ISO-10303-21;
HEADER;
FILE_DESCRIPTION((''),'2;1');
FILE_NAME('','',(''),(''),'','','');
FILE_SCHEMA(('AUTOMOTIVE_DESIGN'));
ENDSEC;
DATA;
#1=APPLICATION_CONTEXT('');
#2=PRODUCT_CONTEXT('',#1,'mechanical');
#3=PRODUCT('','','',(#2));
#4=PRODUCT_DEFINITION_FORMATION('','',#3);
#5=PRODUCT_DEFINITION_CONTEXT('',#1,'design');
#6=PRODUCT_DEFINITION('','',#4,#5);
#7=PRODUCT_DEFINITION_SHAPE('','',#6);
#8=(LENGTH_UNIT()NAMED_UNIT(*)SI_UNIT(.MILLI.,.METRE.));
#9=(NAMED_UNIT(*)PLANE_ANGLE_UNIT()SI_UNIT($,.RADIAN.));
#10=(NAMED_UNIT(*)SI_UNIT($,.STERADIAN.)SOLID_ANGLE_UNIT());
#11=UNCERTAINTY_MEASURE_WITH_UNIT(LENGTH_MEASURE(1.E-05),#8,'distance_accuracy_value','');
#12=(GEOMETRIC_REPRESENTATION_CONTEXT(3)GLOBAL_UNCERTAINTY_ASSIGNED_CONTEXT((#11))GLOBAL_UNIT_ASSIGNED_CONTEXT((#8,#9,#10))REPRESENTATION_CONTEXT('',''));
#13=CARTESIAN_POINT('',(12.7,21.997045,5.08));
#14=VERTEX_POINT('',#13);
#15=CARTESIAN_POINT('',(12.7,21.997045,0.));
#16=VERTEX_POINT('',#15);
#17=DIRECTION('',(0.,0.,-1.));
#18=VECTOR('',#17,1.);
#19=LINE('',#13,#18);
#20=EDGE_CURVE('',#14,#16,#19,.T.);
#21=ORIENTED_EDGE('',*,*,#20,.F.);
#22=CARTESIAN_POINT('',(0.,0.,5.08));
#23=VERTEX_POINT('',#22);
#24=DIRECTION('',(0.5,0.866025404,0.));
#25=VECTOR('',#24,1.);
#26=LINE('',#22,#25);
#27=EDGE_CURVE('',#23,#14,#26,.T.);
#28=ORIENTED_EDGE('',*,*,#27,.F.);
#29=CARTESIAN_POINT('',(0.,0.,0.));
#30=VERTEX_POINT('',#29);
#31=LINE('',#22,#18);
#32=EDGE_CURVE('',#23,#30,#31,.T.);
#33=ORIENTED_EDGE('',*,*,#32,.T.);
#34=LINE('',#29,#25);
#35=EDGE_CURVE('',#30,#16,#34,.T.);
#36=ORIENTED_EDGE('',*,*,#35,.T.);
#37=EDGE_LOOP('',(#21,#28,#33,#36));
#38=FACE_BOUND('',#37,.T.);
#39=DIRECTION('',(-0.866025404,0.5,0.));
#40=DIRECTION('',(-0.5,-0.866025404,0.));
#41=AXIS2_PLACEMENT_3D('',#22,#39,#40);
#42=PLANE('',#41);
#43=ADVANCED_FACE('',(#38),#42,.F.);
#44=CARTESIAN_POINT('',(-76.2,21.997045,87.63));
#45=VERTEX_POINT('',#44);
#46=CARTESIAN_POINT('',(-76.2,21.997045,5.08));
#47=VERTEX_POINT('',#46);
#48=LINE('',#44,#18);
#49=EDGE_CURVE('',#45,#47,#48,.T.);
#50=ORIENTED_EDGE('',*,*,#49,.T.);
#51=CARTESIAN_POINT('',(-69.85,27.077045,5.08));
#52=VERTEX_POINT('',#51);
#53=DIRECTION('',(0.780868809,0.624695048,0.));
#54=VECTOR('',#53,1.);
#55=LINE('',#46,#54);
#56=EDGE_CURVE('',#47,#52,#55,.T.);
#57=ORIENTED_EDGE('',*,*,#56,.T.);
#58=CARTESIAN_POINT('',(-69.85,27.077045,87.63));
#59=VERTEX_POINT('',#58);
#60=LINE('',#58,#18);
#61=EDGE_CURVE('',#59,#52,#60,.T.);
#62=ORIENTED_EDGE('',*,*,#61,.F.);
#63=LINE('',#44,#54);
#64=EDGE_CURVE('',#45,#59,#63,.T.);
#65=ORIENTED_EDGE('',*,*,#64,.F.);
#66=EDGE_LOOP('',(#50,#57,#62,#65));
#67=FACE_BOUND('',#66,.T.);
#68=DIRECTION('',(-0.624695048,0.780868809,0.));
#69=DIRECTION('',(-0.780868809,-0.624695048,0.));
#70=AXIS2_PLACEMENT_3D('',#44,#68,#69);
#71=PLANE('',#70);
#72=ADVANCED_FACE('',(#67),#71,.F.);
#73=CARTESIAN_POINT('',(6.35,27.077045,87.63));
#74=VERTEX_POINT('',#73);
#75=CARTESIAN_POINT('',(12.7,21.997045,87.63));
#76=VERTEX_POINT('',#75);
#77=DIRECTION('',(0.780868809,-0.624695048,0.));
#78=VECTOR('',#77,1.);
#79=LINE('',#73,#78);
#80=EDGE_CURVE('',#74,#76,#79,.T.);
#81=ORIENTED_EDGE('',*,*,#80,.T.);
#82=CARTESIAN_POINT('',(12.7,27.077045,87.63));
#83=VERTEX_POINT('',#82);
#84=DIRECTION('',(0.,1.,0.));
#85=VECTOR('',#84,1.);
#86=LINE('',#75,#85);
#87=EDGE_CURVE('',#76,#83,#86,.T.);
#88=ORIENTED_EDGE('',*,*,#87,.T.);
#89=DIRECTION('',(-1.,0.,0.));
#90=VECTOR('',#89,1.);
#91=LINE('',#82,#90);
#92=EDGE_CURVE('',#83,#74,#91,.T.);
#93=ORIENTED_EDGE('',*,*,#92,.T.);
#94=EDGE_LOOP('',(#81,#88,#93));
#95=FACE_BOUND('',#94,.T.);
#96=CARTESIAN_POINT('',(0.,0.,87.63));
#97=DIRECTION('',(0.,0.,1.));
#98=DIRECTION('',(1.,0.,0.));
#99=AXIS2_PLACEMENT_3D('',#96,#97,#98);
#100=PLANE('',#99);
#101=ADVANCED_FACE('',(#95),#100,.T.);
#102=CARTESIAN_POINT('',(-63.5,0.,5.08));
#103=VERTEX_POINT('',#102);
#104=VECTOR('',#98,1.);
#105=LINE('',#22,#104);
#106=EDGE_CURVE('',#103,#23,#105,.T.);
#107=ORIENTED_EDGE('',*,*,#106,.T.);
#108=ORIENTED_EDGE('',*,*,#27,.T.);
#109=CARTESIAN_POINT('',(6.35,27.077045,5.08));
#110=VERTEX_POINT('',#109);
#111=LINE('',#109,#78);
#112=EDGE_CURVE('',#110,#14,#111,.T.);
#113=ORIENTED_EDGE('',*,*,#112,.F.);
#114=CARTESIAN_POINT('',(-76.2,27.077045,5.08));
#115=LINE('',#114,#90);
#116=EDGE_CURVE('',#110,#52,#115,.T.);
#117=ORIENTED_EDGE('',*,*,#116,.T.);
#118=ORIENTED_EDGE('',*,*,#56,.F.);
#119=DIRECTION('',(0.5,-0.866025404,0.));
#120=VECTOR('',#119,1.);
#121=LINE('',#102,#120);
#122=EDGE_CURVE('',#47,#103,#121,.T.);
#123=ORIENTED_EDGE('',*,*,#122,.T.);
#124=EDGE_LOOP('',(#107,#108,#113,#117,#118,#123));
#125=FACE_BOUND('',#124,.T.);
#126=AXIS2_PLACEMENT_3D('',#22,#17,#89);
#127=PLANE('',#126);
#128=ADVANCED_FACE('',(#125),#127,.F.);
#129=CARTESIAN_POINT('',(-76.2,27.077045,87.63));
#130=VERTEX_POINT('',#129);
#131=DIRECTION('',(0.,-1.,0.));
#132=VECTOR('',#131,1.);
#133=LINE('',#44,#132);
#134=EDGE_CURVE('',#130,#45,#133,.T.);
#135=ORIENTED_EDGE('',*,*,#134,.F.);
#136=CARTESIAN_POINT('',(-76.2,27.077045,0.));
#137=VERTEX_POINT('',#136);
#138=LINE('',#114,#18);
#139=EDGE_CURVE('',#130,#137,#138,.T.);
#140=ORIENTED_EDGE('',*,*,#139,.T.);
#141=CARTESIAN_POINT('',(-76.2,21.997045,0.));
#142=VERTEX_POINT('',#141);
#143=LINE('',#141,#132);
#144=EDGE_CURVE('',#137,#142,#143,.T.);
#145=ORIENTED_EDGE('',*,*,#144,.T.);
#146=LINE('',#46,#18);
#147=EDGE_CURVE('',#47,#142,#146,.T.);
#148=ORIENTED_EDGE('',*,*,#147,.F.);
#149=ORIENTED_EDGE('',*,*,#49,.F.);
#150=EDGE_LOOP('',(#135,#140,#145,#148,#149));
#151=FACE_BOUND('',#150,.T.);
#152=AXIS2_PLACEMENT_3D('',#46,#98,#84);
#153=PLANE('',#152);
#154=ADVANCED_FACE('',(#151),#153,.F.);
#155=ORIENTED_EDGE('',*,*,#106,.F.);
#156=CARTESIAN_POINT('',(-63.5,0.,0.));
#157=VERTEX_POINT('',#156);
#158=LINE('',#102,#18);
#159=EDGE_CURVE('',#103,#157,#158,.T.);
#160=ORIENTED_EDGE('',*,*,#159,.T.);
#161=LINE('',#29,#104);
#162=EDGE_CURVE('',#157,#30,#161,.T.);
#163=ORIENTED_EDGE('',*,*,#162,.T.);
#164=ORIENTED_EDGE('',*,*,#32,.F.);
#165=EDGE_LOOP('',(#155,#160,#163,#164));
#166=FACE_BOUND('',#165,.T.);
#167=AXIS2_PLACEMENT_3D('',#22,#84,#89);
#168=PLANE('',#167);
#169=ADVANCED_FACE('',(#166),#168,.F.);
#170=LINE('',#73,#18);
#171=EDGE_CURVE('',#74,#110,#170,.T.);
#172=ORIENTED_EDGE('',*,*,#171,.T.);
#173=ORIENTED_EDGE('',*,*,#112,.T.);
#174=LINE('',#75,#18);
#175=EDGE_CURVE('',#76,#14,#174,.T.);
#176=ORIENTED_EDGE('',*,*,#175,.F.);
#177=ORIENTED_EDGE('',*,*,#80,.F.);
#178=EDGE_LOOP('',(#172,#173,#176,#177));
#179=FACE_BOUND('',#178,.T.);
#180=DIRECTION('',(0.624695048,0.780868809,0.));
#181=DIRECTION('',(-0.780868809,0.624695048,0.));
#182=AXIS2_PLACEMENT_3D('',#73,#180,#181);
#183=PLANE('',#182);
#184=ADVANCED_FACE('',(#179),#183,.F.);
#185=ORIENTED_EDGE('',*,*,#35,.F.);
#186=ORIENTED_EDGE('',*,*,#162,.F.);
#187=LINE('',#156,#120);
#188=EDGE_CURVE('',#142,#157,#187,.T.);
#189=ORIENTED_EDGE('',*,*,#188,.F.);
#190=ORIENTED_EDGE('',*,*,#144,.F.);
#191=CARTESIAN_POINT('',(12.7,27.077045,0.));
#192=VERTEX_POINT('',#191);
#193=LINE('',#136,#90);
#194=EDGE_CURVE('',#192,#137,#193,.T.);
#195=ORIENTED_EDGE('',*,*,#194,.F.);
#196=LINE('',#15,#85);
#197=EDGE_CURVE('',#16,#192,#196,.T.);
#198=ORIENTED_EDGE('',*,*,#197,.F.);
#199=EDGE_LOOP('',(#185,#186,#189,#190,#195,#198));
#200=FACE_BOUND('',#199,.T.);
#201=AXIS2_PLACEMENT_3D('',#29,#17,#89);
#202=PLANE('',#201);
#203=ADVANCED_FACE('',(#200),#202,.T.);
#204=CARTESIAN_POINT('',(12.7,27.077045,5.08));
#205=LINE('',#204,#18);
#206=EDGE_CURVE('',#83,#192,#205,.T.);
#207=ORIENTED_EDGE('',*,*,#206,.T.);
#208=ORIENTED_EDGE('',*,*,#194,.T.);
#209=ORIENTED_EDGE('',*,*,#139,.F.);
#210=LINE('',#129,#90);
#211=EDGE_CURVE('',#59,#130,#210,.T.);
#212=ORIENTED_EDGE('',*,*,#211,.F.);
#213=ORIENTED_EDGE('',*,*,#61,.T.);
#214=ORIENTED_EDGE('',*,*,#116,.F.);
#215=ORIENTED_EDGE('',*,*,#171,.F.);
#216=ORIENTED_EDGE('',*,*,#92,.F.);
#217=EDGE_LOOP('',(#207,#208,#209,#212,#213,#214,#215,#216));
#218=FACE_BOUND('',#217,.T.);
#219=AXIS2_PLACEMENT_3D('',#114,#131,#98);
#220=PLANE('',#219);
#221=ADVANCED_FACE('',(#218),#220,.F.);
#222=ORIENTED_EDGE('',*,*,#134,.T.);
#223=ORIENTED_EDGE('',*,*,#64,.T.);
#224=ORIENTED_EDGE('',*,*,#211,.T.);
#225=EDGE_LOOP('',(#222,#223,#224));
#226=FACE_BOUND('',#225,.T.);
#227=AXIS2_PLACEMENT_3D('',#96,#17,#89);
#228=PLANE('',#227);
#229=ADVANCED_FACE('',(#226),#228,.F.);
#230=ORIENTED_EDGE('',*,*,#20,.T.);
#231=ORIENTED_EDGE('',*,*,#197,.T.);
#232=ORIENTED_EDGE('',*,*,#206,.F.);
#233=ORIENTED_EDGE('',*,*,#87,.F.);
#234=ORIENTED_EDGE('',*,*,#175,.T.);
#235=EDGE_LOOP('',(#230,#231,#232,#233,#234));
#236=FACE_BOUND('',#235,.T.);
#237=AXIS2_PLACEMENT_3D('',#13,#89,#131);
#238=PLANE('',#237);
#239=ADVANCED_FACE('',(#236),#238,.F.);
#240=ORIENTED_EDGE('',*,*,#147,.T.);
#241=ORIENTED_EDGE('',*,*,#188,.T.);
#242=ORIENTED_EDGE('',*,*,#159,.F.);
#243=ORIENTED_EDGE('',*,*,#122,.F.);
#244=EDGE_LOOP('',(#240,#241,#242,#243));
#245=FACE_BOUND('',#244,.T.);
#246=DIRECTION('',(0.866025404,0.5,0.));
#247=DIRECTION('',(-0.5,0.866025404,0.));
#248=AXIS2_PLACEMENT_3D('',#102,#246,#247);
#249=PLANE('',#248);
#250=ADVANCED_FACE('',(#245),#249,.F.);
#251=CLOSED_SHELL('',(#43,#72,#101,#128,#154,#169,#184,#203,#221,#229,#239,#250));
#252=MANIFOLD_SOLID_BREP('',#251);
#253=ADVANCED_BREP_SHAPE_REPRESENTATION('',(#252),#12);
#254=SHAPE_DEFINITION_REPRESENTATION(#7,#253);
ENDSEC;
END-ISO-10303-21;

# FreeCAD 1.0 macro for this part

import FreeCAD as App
import Part
import Sketcher
Q = App.Units.Quantity


def add_polygon(sketch, points):
    """Adds a closed chain of lines whose ends are joined by coincident constraints."""
    first, n = sketch.GeometryCount, len(points)
    for a, b in zip(points, points[1:] + points[:1]):
        sketch.addGeometry(Part.LineSegment(App.Vector(*a, 0), App.Vector(*b, 0)), False)
    for i in range(n):
        sketch.addConstraint(Sketcher.Constraint("Coincident", first + i, 2, first + (i + 1) % n, 1))

doc = App.newDocument("Part")
params = doc.addObject("Spreadsheet::Sheet", "Params")
for row, (alias, value) in enumerate([
    ("sketch1_length", "1 in"),
    ("sketch1_width", "2.5 in"),
    ("sketch1_width2", "3.5 in"),
    ("sketch1_height", "0.2 in"),
    ("pad1_length", "0.2 in"),
    ("sketch2_height", "0.2 in"),
    ("sketch2_width", "0.25 in"),
    ("pad2_length", "3.25 in"),
], start=1):
    params.set(f"A{row}", alias)
    params.set(f"B{row}", "=" + value)
    params.setAlias(f"B{row}", alias)

body = doc.addObject("PartDesign::Body", "Body")

sketch1 = body.newObject("Sketcher::SketchObject", "Sketch")
sketch1.AttachmentSupport = (doc.getObject("XY_Plane"), [""])
sketch1.MapMode = "FlatFace"
add_polygon(sketch1, [(-64, 0), (0, 0), (13, 22), (13, 27), (-76, 27), (-76, 22)])
sketch1.addConstraint(Sketcher.Constraint("Horizontal", 0))
sketch1.addConstraint(Sketcher.Constraint("Vertical", 2))
sketch1.addConstraint(Sketcher.Constraint("Horizontal", 3))
sketch1.addConstraint(Sketcher.Constraint("Vertical", 4))
sketch1.addConstraint(Sketcher.Constraint("Coincident", 0, 2, -1, 1))
sketch1.addConstraint(Sketcher.Constraint("Horizontal", 1, 2, 4, 2))
sketch1.addConstraint(Sketcher.Constraint("Equal", 1, 5))
sketch1.addConstraint(Sketcher.Constraint("Distance", 1, Q("1 in")))
sketch1.addConstraint(Sketcher.Constraint("DistanceX", 0, 1, 0, 2, Q("2.5 in")))
sketch1.addConstraint(Sketcher.Constraint("DistanceX", 3, 2, 3, 1, Q("3.5 in")))
sketch1.addConstraint(Sketcher.Constraint("DistanceY", 2, 1, 2, 2, Q("0.2 in")))
sketch1.setExpression("Constraints[13]", "Params.sketch1_length")
sketch1.setExpression("Constraints[14]", "Params.sketch1_width")
sketch1.setExpression("Constraints[15]", "Params.sketch1_width2")
sketch1.setExpression("Constraints[16]", "Params.sketch1_height")
pad1 = body.newObject("PartDesign::Pad", "Pad")
pad1.Profile = sketch1
pad1.setExpression("Length", "Params.pad1_length")

sketch2 = body.newObject("Sketcher::SketchObject", "Sketch001")
sketch2.AttachmentSupport = (doc.getObject("XY_Plane"), [""])
sketch2.MapMode = "FlatFace"
sketch2.AttachmentOffset = App.Placement(App.Vector(0, 0, 0.2 * 25.4), App.Rotation())
add_polygon(sketch2, [(-76, 22), (-70, 27), (-76, 27)])
add_polygon(sketch2, [(13, 22), (13, 27), (6, 27)])
sketch2.addConstraint(Sketcher.Constraint("Horizontal", 1))
sketch2.addConstraint(Sketcher.Constraint("Vertical", 2))
sketch2.addConstraint(Sketcher.Constraint("Vertical", 3))
sketch2.addConstraint(Sketcher.Constraint("Horizontal", 4))
sketch2.addConstraint(Sketcher.Constraint("Horizontal", 1, 2, 3, 2))
sketch2.addConstraint(Sketcher.Constraint("Horizontal", 2, 2, 5, 2))
sketch2.addConstraint(Sketcher.Constraint("Equal", 1, 4))
sketch2.addConstraint(Sketcher.Constraint("DistanceY", 2, 2, 2, 1, Q("0.2 in")))
sketch2.addConstraint(Sketcher.Constraint("DistanceX", 1, 2, -1, 1, Q("3 in")))
sketch2.addConstraint(Sketcher.Constraint("DistanceX", 0, 2, 4, 2, Q("3 in")))
sketch2.addConstraint(Sketcher.Constraint("DistanceX", 1, 2, 1, 1, Q("0.25 in")))
sketch2.addConstraint(Sketcher.Constraint("DistanceY", -1, 1, 0, 2, 27.077045))
sketch2.setExpression("Constraints[13]", "Params.sketch2_height")
sketch2.setExpression("Constraints[16]", "Params.sketch2_width")
pad2 = body.newObject("PartDesign::Pad", "Pad001")
pad2.Profile = sketch2
pad2.setExpression("Length", "Params.pad2_length")

doc.recompute()
